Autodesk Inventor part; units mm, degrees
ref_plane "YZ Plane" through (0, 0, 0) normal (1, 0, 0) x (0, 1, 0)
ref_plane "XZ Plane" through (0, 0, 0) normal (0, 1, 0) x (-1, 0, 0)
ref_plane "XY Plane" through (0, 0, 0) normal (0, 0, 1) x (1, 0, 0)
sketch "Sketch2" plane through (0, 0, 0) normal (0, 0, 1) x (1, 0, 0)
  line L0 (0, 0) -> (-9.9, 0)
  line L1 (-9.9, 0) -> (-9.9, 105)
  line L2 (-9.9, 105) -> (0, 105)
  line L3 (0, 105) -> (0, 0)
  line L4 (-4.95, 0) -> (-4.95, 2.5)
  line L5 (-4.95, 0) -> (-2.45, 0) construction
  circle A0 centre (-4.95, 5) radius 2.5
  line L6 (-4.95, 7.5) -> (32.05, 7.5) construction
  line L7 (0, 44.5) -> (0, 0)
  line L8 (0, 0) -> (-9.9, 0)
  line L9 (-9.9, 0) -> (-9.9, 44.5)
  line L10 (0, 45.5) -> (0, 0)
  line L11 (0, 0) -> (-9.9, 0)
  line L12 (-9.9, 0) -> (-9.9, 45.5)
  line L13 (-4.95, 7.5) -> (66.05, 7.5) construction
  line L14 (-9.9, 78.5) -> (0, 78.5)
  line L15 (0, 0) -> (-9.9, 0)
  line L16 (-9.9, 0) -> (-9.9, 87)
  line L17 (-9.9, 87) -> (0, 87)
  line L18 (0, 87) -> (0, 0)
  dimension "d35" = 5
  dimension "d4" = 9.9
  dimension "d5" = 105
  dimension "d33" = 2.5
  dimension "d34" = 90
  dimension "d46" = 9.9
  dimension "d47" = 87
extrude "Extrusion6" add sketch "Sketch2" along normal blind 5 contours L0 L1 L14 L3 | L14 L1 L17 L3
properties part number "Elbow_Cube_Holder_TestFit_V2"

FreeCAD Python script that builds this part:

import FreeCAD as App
import Part
import Sketcher

V = App.Vector
Q = App.Units.Quantity

doc = App.newDocument("Part")
body = doc.addObject("PartDesign::Body", "Body")

sketch1 = body.newObject("Sketcher::SketchObject", "Sketch")
sketch1.AttachmentSupport = (doc.getObject("XY_Plane"), [""])
sketch1.MapMode = "FlatFace"
sketch1.addGeometry(Part.LineSegment(V(-5, 0, 0), V(0, 0, 0)), False)
sketch1.addGeometry(Part.LineSegment(V(0, 0, 0), V(0, 87, 0)), False)
sketch1.addGeometry(Part.LineSegment(V(0, 87, 0), V(-9.9, 87, 0)), False)
sketch1.addGeometry(Part.LineSegment(V(-9.9, 87, 0), V(-9.9, 0, 0)), False)
sketch1.addGeometry(Part.LineSegment(V(-9.9, 0, 0), V(-5, 0, 0)), False)
sketch1.addGeometry(Part.Circle(V(-5, 5, 0), V(0, 0, 1), 2.5), False)
sketch1.addConstraint(Sketcher.Constraint("Coincident", 0, 2, 1, 1))
sketch1.addConstraint(Sketcher.Constraint("Coincident", 1, 2, 2, 1))
sketch1.addConstraint(Sketcher.Constraint("Coincident", 2, 2, 3, 1))
sketch1.addConstraint(Sketcher.Constraint("Coincident", 3, 2, 4, 1))
sketch1.addConstraint(Sketcher.Constraint("Coincident", 4, 2, 0, 1))
sketch1.addConstraint(Sketcher.Constraint("Horizontal", 0))
sketch1.addConstraint(Sketcher.Constraint("Vertical", 1))
sketch1.addConstraint(Sketcher.Constraint("Horizontal", 2))
sketch1.addConstraint(Sketcher.Constraint("Vertical", 3))
sketch1.addConstraint(Sketcher.Constraint("Horizontal", 4))
sketch1.addConstraint(Sketcher.Constraint("Coincident", 0, 2, -1, 1))
sketch1.addConstraint(Sketcher.Constraint("Vertical", 5, 3, 4, 2))
sketch1.addConstraint(Sketcher.Constraint("Equal", 0, 4))
sketch1.addConstraint(Sketcher.Constraint("Diameter", 5, Q("5 mm")))
sketch1.addConstraint(Sketcher.Constraint("DistanceY", 1, 1, 1, 2, Q("87 mm")))
sketch1.addConstraint(Sketcher.Constraint("DistanceX", 2, 2, 2, 1, Q("9.9 mm")))
sketch1.addConstraint(Sketcher.Constraint("DistanceY", -1, 1, 5, 3, Q("5 mm")))
pad1 = body.newObject("PartDesign::Pad", "Pad")
pad1.Profile = sketch1
pad1.Length = 5

doc.recompute()
